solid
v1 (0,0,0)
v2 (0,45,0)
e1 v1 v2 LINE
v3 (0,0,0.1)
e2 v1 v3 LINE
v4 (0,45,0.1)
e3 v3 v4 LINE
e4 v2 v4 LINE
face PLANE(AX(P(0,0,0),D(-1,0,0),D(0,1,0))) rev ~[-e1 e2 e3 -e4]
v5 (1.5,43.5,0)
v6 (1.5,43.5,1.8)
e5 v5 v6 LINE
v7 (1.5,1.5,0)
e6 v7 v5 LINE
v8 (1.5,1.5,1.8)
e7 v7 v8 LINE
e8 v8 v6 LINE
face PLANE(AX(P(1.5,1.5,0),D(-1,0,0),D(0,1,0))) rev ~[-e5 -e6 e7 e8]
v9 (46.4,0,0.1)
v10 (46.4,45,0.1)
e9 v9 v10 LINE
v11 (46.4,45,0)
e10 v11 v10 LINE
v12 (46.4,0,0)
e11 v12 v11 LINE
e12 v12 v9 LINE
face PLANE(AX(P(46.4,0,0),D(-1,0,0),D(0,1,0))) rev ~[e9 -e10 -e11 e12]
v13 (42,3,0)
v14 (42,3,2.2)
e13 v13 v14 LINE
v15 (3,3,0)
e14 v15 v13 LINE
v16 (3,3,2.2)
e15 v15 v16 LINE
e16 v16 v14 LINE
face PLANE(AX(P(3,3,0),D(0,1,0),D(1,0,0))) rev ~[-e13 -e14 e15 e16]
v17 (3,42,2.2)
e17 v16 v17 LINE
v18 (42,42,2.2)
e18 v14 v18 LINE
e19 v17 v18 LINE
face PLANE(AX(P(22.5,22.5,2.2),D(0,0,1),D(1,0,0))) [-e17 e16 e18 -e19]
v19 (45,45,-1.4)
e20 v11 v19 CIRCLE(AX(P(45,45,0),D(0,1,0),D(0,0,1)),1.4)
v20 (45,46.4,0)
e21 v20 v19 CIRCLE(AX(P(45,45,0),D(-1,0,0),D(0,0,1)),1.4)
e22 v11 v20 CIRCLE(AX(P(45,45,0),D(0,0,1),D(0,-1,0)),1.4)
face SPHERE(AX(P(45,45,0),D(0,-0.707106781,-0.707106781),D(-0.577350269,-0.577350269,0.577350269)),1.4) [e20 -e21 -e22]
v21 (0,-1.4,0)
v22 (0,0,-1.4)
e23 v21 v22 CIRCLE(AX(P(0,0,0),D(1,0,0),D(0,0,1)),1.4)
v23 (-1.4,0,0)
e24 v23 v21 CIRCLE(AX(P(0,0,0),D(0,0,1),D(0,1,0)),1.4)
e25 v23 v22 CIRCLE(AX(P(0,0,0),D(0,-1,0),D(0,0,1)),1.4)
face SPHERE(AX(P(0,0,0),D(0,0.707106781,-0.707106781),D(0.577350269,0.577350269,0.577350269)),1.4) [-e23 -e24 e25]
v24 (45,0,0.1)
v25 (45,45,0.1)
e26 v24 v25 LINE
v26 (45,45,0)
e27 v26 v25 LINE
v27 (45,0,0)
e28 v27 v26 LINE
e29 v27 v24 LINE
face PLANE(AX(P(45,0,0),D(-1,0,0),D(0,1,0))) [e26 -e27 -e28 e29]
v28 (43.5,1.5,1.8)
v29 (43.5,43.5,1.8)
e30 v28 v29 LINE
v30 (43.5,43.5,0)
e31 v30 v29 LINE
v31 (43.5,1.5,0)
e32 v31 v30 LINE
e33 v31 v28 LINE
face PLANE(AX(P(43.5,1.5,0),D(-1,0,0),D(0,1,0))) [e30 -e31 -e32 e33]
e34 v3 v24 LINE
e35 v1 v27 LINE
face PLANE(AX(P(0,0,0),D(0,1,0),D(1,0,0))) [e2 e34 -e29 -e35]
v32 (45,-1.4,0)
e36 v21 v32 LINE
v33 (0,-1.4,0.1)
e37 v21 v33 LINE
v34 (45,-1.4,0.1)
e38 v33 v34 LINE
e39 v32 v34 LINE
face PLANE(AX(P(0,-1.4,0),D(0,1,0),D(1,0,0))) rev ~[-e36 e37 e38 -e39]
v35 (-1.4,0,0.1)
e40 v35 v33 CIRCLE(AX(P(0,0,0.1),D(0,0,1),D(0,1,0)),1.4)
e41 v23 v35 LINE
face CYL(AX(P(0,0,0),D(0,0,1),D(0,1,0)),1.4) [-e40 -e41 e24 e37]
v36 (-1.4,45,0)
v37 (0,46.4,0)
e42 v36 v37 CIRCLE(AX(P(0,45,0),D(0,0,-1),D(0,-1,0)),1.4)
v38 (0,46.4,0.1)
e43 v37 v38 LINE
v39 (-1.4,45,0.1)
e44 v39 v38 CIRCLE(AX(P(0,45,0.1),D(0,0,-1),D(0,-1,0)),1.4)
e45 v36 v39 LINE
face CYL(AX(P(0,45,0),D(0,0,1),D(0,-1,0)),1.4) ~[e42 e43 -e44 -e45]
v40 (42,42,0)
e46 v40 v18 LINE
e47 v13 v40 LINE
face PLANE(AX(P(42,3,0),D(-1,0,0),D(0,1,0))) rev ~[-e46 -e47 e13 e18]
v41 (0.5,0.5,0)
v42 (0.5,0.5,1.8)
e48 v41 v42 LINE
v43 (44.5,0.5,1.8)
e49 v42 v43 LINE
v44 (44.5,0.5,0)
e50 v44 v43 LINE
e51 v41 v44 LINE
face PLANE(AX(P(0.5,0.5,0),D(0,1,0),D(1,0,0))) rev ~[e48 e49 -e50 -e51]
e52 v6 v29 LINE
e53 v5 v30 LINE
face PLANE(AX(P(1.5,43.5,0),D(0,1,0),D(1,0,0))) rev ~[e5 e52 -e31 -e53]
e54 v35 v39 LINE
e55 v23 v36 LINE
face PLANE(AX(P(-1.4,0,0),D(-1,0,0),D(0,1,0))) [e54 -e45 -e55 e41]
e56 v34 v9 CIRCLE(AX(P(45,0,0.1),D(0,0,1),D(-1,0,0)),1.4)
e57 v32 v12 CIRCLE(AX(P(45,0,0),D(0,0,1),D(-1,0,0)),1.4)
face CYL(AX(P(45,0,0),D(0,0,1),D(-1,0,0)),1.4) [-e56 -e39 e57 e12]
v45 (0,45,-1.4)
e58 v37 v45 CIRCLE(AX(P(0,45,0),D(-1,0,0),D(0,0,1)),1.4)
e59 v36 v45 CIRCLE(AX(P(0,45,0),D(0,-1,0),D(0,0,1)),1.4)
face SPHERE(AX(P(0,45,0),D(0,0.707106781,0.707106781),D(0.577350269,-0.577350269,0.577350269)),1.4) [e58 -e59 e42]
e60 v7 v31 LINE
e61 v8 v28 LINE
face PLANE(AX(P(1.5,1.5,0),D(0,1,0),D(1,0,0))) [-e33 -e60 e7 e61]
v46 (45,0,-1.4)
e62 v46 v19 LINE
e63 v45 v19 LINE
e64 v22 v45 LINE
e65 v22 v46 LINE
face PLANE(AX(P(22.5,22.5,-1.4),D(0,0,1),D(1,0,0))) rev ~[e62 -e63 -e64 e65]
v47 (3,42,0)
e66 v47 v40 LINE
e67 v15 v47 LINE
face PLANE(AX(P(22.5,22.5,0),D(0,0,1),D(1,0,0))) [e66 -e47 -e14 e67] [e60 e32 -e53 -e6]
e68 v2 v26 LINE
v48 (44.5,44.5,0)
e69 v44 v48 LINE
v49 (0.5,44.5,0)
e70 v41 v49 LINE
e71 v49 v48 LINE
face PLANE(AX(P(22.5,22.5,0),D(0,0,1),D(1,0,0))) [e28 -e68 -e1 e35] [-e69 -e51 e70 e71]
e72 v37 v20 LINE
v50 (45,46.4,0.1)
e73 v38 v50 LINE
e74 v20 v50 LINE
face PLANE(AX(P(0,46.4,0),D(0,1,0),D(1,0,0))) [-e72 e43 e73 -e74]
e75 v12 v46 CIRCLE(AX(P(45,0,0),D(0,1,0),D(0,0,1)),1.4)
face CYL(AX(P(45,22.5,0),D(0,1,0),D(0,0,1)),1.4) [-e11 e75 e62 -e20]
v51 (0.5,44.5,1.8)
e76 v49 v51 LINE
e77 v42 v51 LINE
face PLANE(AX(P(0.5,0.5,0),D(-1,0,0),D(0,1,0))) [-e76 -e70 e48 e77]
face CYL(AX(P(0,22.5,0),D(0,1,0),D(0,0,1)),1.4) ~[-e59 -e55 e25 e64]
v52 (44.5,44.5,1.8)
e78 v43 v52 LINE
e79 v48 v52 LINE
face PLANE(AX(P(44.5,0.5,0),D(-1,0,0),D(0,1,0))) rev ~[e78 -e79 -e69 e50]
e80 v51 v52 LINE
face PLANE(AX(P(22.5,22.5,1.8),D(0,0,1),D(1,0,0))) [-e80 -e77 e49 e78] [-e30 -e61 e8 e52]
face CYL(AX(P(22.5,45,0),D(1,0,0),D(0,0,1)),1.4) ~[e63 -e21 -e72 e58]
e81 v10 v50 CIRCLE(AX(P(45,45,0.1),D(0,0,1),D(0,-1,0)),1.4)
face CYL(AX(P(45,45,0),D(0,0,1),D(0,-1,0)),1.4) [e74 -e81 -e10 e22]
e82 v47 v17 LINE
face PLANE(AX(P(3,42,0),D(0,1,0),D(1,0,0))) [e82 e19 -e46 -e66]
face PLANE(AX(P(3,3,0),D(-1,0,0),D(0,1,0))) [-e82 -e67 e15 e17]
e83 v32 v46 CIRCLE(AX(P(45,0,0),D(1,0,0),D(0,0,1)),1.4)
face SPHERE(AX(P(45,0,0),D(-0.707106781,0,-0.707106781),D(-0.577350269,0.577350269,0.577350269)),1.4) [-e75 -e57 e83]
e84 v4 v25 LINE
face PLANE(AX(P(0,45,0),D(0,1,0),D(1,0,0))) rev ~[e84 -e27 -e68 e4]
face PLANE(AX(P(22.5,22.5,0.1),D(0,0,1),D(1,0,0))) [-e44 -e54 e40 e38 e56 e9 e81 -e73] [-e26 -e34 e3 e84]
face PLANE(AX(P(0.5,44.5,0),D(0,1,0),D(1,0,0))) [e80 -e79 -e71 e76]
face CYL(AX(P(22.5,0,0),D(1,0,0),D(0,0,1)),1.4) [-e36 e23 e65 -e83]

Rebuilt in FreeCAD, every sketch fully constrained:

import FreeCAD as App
import Part
import Sketcher

V = App.Vector


def faces_at(feature, points):
    """Names of the faces that lie closest to the given points."""
    faces = feature.Shape.Faces
    near = lambda p: min(range(len(faces)), key=lambda i: faces[i].distToShape(Part.Vertex(*p))[0])
    return sorted({f"Face{near(p) + 1}" for p in points})

doc = App.newDocument("Part")
params = doc.addObject("Spreadsheet::Sheet", "Params")
for row, (alias, value) in enumerate([
    ("sketch1_width", "45 mm"),
    ("pad1_length", "0.1 mm"),
    ("thickness_wall", "1.4 mm"),
    ("sketch2_width", "44 mm"),
    ("sketch2_width2", "42 mm"),
    ("pad2_length", "1.8 mm"),
    ("sketch3_width", "39 mm"),
    ("pad3_length", "2.2 mm"),
], start=1):
    params.set(f"A{row}", alias)
    params.set(f"B{row}", "=" + value)
    params.setAlias(f"B{row}", alias)

body = doc.addObject("PartDesign::Body", "Body")

sketch1 = body.newObject("Sketcher::SketchObject", "Sketch")
sketch1.AttachmentSupport = (doc.getObject("XY_Plane"), [""])
sketch1.MapMode = "FlatFace"
sketch1.addGeometry([
    Part.LineSegment(V(0, 45, 0), V(0, 0, 0)),
    Part.LineSegment(V(0, 0, 0), V(45, 0, 0)),
    Part.LineSegment(V(45, 0, 0), V(45, 45, 0)),
    Part.LineSegment(V(45, 45, 0), V(0, 45, 0)),
], False)
sketch1.addConstraint([
    Sketcher.Constraint("Coincident", 0, 2, 1, 1),
    Sketcher.Constraint("Coincident", 1, 2, 2, 1),
    Sketcher.Constraint("Coincident", 2, 2, 3, 1),
    Sketcher.Constraint("Coincident", 3, 2, 0, 1),
    Sketcher.Constraint("Vertical", 0),
    Sketcher.Constraint("Horizontal", 1),
    Sketcher.Constraint("Vertical", 2),
    Sketcher.Constraint("Horizontal", 3),
    Sketcher.Constraint("Coincident", 0, 2, -1, 1),
    Sketcher.Constraint("Equal", 3, 0),
    Sketcher.Constraint("DistanceX", 1, 1, 1, 2, 45.0),
])
sketch1.setExpression("Constraints[10]", "Params.sketch1_width")
pad1 = body.newObject("PartDesign::Pad", "Pad")
pad1.Profile = sketch1
pad1.setExpression("Length", "Params.pad1_length")
doc.recompute()

thickness = body.newObject("PartDesign::Thickness", "Thickness")
thickness.Base = (pad1, faces_at(pad1, [(22.5, 22.5, 0.1)]))
thickness.setExpression("Value", "Params.thickness_wall")
thickness.Reversed = False
thickness.Join = "Arc"

sketch2 = body.newObject("Sketcher::SketchObject", "Sketch001")
sketch2.AttachmentSupport = (doc.getObject("XY_Plane"), [""])
sketch2.MapMode = "FlatFace"
sketch2.addGeometry([
    Part.LineSegment(V(0, 44, 0), V(0, 0, 0)),
    Part.LineSegment(V(0, 0, 0), V(44, 0, 0)),
    Part.LineSegment(V(44, 0, 0), V(44, 44, 0)),
    Part.LineSegment(V(44, 44, 0), V(0, 44, 0)),
    Part.LineSegment(V(44, 2, 0), V(2, 2, 0)),
    Part.LineSegment(V(2, 2, 0), V(2, 44, 0)),
    Part.LineSegment(V(2, 44, 0), V(44, 44, 0)),
    Part.LineSegment(V(44, 44, 0), V(44, 2, 0)),
], False)
sketch2.addConstraint([
    Sketcher.Constraint("Coincident", 0, 2, 1, 1),
    Sketcher.Constraint("Coincident", 1, 2, 2, 1),
    Sketcher.Constraint("Coincident", 2, 2, 3, 1),
    Sketcher.Constraint("Coincident", 3, 2, 0, 1),
    Sketcher.Constraint("Coincident", 4, 2, 5, 1),
    Sketcher.Constraint("Coincident", 5, 2, 6, 1),
    Sketcher.Constraint("Coincident", 6, 2, 7, 1),
    Sketcher.Constraint("Coincident", 7, 2, 4, 1),
    Sketcher.Constraint("Vertical", 0),
    Sketcher.Constraint("Horizontal", 1),
    Sketcher.Constraint("Vertical", 2),
    Sketcher.Constraint("Horizontal", 3),
    Sketcher.Constraint("Horizontal", 4),
    Sketcher.Constraint("Vertical", 5),
    Sketcher.Constraint("Horizontal", 6),
    Sketcher.Constraint("Vertical", 7),
    Sketcher.Constraint("Equal", 3, 0),
    Sketcher.Constraint("Equal", 6, 5),
    Sketcher.Constraint("DistanceX", 1, 1, 1, 2, 44.0),
    Sketcher.Constraint("DistanceX", 4, 2, 4, 1, 42.0),
    Sketcher.Constraint("DistanceX", 0, 2, 4, 2, 1.0),
    Sketcher.Constraint("DistanceY", 0, 2, 4, 2, 1.0),
    Sketcher.Constraint("DistanceX", -1, 1, 0, 2, 0.5),
    Sketcher.Constraint("DistanceY", -1, 1, 0, 2, 0.5),
])
sketch2.setExpression("Constraints[18]", "Params.sketch2_width")
sketch2.setExpression("Constraints[19]", "Params.sketch2_width2")
pad2 = body.newObject("PartDesign::Pad", "Pad001")
pad2.Profile = sketch2
pad2.setExpression("Length", "Params.pad2_length")

sketch3 = body.newObject("Sketcher::SketchObject", "Sketch002")
sketch3.AttachmentSupport = (doc.getObject("XY_Plane"), [""])
sketch3.MapMode = "FlatFace"
sketch3.addGeometry([
    Part.LineSegment(V(3, 42, 0), V(3, 3, 0)),
    Part.LineSegment(V(3, 3, 0), V(42, 3, 0)),
    Part.LineSegment(V(42, 3, 0), V(42, 42, 0)),
    Part.LineSegment(V(42, 42, 0), V(3, 42, 0)),
], False)
sketch3.addConstraint([
    Sketcher.Constraint("Coincident", 0, 2, 1, 1),
    Sketcher.Constraint("Coincident", 1, 2, 2, 1),
    Sketcher.Constraint("Coincident", 2, 2, 3, 1),
    Sketcher.Constraint("Coincident", 3, 2, 0, 1),
    Sketcher.Constraint("Vertical", 0),
    Sketcher.Constraint("Horizontal", 1),
    Sketcher.Constraint("Vertical", 2),
    Sketcher.Constraint("Horizontal", 3),
    Sketcher.Constraint("Equal", 3, 0),
    Sketcher.Constraint("DistanceX", 1, 1, 1, 2, 39.0),
    Sketcher.Constraint("DistanceX", -1, 1, 0, 2, 3.0),
    Sketcher.Constraint("DistanceY", -1, 1, 0, 2, 3.0),
])
sketch3.setExpression("Constraints[9]", "Params.sketch3_width")
pad3 = body.newObject("PartDesign::Pad", "Pad002")
pad3.Profile = sketch3
pad3.setExpression("Length", "Params.pad3_length")

doc.recompute()
